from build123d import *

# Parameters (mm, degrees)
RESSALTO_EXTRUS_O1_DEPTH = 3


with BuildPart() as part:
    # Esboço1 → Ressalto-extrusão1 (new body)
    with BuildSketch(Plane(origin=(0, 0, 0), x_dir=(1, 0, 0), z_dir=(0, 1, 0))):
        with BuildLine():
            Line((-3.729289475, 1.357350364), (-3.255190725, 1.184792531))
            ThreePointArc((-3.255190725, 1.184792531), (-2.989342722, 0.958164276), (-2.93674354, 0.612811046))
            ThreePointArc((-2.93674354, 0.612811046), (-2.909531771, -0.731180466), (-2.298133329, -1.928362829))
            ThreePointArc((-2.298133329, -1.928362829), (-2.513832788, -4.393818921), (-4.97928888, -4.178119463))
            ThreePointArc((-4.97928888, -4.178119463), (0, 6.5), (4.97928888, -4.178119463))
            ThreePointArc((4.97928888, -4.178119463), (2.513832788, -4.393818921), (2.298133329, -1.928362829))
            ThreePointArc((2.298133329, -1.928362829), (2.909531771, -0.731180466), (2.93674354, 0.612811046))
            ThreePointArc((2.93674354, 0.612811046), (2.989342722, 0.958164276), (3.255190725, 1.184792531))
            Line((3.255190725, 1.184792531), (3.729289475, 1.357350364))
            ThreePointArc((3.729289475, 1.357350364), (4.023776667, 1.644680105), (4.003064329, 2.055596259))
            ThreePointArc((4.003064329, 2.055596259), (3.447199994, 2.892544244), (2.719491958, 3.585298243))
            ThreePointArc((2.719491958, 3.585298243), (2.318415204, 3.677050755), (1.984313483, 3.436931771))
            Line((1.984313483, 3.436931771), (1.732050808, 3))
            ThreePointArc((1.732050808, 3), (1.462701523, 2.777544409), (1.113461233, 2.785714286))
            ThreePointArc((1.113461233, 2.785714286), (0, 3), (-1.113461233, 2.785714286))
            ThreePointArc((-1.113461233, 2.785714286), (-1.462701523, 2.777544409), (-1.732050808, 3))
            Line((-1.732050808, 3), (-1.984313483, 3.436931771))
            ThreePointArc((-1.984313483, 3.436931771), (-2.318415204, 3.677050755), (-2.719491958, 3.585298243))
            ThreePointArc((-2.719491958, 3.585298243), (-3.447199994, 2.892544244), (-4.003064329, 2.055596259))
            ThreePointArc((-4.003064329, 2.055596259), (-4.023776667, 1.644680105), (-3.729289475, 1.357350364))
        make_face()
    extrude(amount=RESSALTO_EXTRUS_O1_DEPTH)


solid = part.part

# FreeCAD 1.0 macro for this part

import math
import FreeCAD as App
import Part
import Sketcher

V = App.Vector
Q = App.Units.Quantity

doc = App.newDocument("Part")
params = doc.addObject("Spreadsheet::Sheet", "Params")
for row, (alias, value) in enumerate([
    ("sketch1_radius", "3 mm"),
    ("sketch1_radius2", "0.5 mm"),
    ("sketch1_radius3", "4.5 mm"),
    ("sketch1_radius4", "6.5 mm"),
    ("pad1_length", "3 mm"),
], start=1):
    params.set(f"A{row}", alias)
    params.set(f"B{row}", "=" + value)
    params.setAlias(f"B{row}", alias)

body = doc.addObject("PartDesign::Body", "Body")

# Sketch on XZ plane
sketch1 = body.newObject("Sketcher::SketchObject", "Sketch")
sketch1.AttachmentSupport = (doc.getObject("XZ_Plane"), [""])
sketch1.MapMode = "FlatFace"
sketch1.addGeometry(Part.LineSegment(V(-3.255191, -1.184793, 0), V(-3.729289, -1.35735, 0)), False)
sketch1.addGeometry(Part.ArcOfCircle(Part.Circle(V(-3.558279, -1.827197, 0), V(0, 0, 1), 0.5), math.radians(110), math.radians(207.180756)), False)
sketch1.addGeometry(Part.ArcOfCircle(Part.Circle(V(0, 0, 0), V(0, 0, 1), 4.5), math.radians(-152.819244), math.radians(-127.180756)), False)
sketch1.addGeometry(Part.ArcOfCircle(Part.Circle(V(-2.417326, -3.186932, 0), V(0, 0, 1), 0.5), math.radians(-127.180756), math.radians(-30)), False)
sketch1.addGeometry(Part.LineSegment(V(-1.984313, -3.436932, 0), V(-1.732051, -3, 0)), False)
sketch1.addGeometry(Part.ArcOfCircle(Part.Circle(V(-1.299038, -3.25, 0), V(0, 0, 1), 0.5), math.radians(68.213211), math.radians(150)), False)
sketch1.addGeometry(Part.ArcOfCircle(Part.Circle(V(0, 0, 0), V(0, 0, 1), 3), math.radians(-111.786789), math.radians(-68.213211)), False)
sketch1.addGeometry(Part.ArcOfCircle(Part.Circle(V(1.299038, -3.25, 0), V(0, 0, 1), 0.5), math.radians(30), math.radians(111.786789)), False)
sketch1.addGeometry(Part.LineSegment(V(1.732051, -3, 0), V(1.984313, -3.436932, 0)), False)
sketch1.addGeometry(Part.ArcOfCircle(Part.Circle(V(2.417326, -3.186932, 0), V(0, 0, 1), 0.5), math.radians(-150), math.radians(-52.819244)), False)
sketch1.addGeometry(Part.ArcOfCircle(Part.Circle(V(0, 0, 0), V(0, 0, 1), 4.5), math.radians(-52.819244), math.radians(-27.180756)), False)
sketch1.addGeometry(Part.ArcOfCircle(Part.Circle(V(3.558279, -1.827197, 0), V(0, 0, 1), 0.5), math.radians(-27.180756), math.radians(70)), False)
sketch1.addGeometry(Part.LineSegment(V(3.729289, -1.35735, 0), V(3.255191, -1.184793, 0)), False)
sketch1.addGeometry(Part.ArcOfCircle(Part.Circle(V(3.426201, -0.714946, 0), V(0, 0, 1), 0.5), math.radians(168.213211), math.radians(250)), False)
sketch1.addGeometry(Part.ArcOfCircle(Part.Circle(V(0, 0, 0), V(0, 0, 1), 3), math.radians(-11.786789), math.radians(40)), False)
sketch1.addGeometry(Part.ArcOfCircle(Part.Circle(V(3.638711, 3.053241, 0), V(0, 0, 1), 1.75), math.radians(40), math.radians(220)), False)
sketch1.addGeometry(Part.ArcOfCircle(Part.Circle(V(0, 0, 0), V(0, 0, 1), 6.5), math.radians(140), math.radians(400)), False)
sketch1.addGeometry(Part.ArcOfCircle(Part.Circle(V(-3.638711, 3.053241, 0), V(0, 0, 1), 1.75), math.radians(-40), math.radians(140)), False)
sketch1.addGeometry(Part.ArcOfCircle(Part.Circle(V(0, 0, 0), V(0, 0, 1), 3), math.radians(140), math.radians(191.786789)), False)
sketch1.addGeometry(Part.ArcOfCircle(Part.Circle(V(-3.426201, -0.714946, 0), V(0, 0, 1), 0.5), math.radians(-70), math.radians(11.786789)), False)
sketch1.addConstraint(Sketcher.Constraint("Tangent", 0, 2, 1, 1))
sketch1.addConstraint(Sketcher.Constraint("Tangent", 1, 2, 2, 1))
sketch1.addConstraint(Sketcher.Constraint("Tangent", 2, 2, 3, 1))
sketch1.addConstraint(Sketcher.Constraint("Tangent", 3, 2, 4, 1))
sketch1.addConstraint(Sketcher.Constraint("Tangent", 4, 2, 5, 2))
sketch1.addConstraint(Sketcher.Constraint("Tangent", 5, 1, 6, 1))
sketch1.addConstraint(Sketcher.Constraint("Tangent", 6, 2, 7, 2))
sketch1.addConstraint(Sketcher.Constraint("Tangent", 7, 1, 8, 1))
sketch1.addConstraint(Sketcher.Constraint("Tangent", 8, 2, 9, 1))
sketch1.addConstraint(Sketcher.Constraint("Tangent", 9, 2, 10, 1))
sketch1.addConstraint(Sketcher.Constraint("Tangent", 10, 2, 11, 1))
sketch1.addConstraint(Sketcher.Constraint("Tangent", 11, 2, 12, 1))
sketch1.addConstraint(Sketcher.Constraint("Tangent", 12, 2, 13, 2))
sketch1.addConstraint(Sketcher.Constraint("Tangent", 13, 1, 14, 1))
sketch1.addConstraint(Sketcher.Constraint("Tangent", 14, 2, 15, 2))
sketch1.addConstraint(Sketcher.Constraint("Tangent", 15, 1, 16, 2))
sketch1.addConstraint(Sketcher.Constraint("Tangent", 16, 1, 17, 2))
sketch1.addConstraint(Sketcher.Constraint("Tangent", 17, 1, 18, 1))
sketch1.addConstraint(Sketcher.Constraint("Tangent", 18, 2, 19, 2))
sketch1.addConstraint(Sketcher.Constraint("Tangent", 19, 1, 0, 1))
sketch1.addConstraint(Sketcher.Constraint("Coincident", 2, 3, -1, 1))
sketch1.addConstraint(Sketcher.Constraint("Coincident", 6, 3, -1, 1))
sketch1.addConstraint(Sketcher.Constraint("Coincident", 10, 3, -1, 1))
sketch1.addConstraint(Sketcher.Constraint("Coincident", 14, 3, -1, 1))
sketch1.addConstraint(Sketcher.Constraint("Coincident", 16, 3, -1, 1))
sketch1.addConstraint(Sketcher.Constraint("Coincident", 18, 3, -1, 1))
sketch1.addConstraint(Sketcher.Constraint("Equal", 1, 3))
sketch1.addConstraint(Sketcher.Constraint("Equal", 3, 5))
sketch1.addConstraint(Sketcher.Constraint("Equal", 5, 7))
sketch1.addConstraint(Sketcher.Constraint("Equal", 7, 9))
sketch1.addConstraint(Sketcher.Constraint("Equal", 2, 10))
sketch1.addConstraint(Sketcher.Constraint("Equal", 9, 11))
sketch1.addConstraint(Sketcher.Constraint("Equal", 11, 13))
sketch1.addConstraint(Sketcher.Constraint("Equal", 6, 14))
sketch1.addConstraint(Sketcher.Constraint("Equal", 15, 17))
sketch1.addConstraint(Sketcher.Constraint("Equal", 13, 19))
sketch1.addConstraint(Sketcher.Constraint("Symmetric", 4, 2, 7, 1, -2))
sketch1.addConstraint(Sketcher.Constraint("Symmetric", 0, 2, 11, 2, -2))
sketch1.addConstraint(Sketcher.Constraint("Horizontal", 15, 3, 17, 3))
sketch1.addConstraint(Sketcher.Constraint("Equal", 0, 4))
sketch1.addConstraint(Sketcher.Constraint("Radius", 6, Q("3 mm")))
sketch1.addConstraint(Sketcher.Constraint("Radius", 1, Q("0.5 mm")))
sketch1.addConstraint(Sketcher.Constraint("Radius", 2, Q("4.5 mm")))
sketch1.addConstraint(Sketcher.Constraint("Radius", 16, Q("6.5 mm")))
sketch1.addConstraint(Sketcher.Constraint("Angle", 0, Q("-160 deg")))
sketch1.addConstraint(Sketcher.Constraint("Angle", 4, Q("60 deg")))
sketch1.addConstraint(Sketcher.Constraint("DistanceY", 4, 2, -1, 1, Q("3 mm")))
sketch1.addConstraint(Sketcher.Constraint("DistanceX", 16, 1, 0, 2, Q("1.249999 mm")))
sketch1.setExpression("Constraints[40]", "Params.sketch1_radius")
sketch1.setExpression("Constraints[41]", "Params.sketch1_radius2")
sketch1.setExpression("Constraints[42]", "Params.sketch1_radius3")
sketch1.setExpression("Constraints[43]", "Params.sketch1_radius4")
pad1 = body.newObject("PartDesign::Pad", "Pad")
pad1.Profile = sketch1
pad1.setExpression("Length", "Params.pad1_length")
pad1.Reversed = True

doc.recompute()
